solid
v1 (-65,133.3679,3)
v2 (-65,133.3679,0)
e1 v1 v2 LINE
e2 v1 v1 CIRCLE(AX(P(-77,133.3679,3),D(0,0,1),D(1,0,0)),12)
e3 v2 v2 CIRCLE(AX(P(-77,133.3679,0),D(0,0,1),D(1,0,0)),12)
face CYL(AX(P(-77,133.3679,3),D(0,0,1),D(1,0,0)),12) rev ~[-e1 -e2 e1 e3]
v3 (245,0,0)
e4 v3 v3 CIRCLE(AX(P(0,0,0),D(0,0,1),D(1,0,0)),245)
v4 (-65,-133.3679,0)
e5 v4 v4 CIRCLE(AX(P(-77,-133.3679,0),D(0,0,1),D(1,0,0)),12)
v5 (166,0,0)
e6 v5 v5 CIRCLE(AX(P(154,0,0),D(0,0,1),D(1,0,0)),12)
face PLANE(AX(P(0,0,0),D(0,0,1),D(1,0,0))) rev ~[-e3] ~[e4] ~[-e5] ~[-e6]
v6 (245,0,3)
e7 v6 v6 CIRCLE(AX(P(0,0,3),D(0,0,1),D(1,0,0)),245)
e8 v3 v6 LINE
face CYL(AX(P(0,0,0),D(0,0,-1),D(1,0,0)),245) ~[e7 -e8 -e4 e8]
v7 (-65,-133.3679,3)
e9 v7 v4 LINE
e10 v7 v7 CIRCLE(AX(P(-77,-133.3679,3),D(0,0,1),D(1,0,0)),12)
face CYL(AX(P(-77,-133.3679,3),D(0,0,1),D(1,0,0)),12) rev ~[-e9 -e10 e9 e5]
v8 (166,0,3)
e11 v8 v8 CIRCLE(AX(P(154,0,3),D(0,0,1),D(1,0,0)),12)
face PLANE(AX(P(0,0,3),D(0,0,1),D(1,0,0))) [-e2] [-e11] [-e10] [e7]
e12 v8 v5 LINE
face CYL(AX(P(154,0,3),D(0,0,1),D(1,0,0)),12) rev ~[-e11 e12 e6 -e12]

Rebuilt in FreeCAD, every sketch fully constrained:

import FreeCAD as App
import Part
import Sketcher
Q = App.Units.Quantity

doc = App.newDocument("Part")
body = doc.addObject("PartDesign::Body", "Body")

sketch1 = doc.addObject("Sketcher::SketchObject", "Sketch")
body.addObject(sketch1)
sketch1.AttachmentSupport = (doc.XY_Plane, [""])
sketch1.MapMode = "FlatFace"
sketch1.addGeometry(Part.Circle(App.Vector(0, 0, 0), App.Vector(0, 0, 1), 245), False)
sketch1.addConstraint([
    Sketcher.Constraint("Coincident", 0, 3, -1, 1),
    Sketcher.Constraint("Diameter", 0, Q("490 mm")),
])
pad1 = doc.addObject("PartDesign::Pad", "Pad")
body.addObject(pad1)
pad1.Profile = sketch1
pad1.Length = 3

sketch2 = doc.addObject("Sketcher::SketchObject", "Sketch001")
body.addObject(sketch2)
sketch2.AttachmentSupport = (doc.XY_Plane, [""])
sketch2.MapMode = "FlatFace"
sketch2.AttachmentOffset = App.Placement(App.Vector(0, 0, 3), App.Rotation())
sketch2.addGeometry([
    Part.Circle(App.Vector(154, 0, 0), App.Vector(0, 0, 1), 12),
    Part.Circle(App.Vector(-77, 133.3679, 0), App.Vector(0, 0, 1), 12),
    Part.Circle(App.Vector(-77, -133.3679, 0), App.Vector(0, 0, 1), 12),
], False)
sketch2.addConstraint([
    Sketcher.Constraint("Equal", 0, 1),
    Sketcher.Constraint("Equal", 1, 2),
    Sketcher.Constraint("Symmetric", 1, 3, 2, 3, -1),
    Sketcher.Constraint("PointOnObject", 0, 3, -1),
    Sketcher.Constraint("Diameter", 0, Q("24 mm")),
    Sketcher.Constraint("DistanceX", -1, 1, 0, 3, Q("154 mm")),
    Sketcher.Constraint("DistanceX", 1, 3, -1, 1, Q("77 mm")),
    Sketcher.Constraint("DistanceY", -1, 1, 1, 3, Q("133.368 mm")),
])
pocket1 = doc.addObject("PartDesign::Pocket", "Pocket")
body.addObject(pocket1)
pocket1.Profile = sketch2
pocket1.Type = "ThroughAll"

doc.recompute()
